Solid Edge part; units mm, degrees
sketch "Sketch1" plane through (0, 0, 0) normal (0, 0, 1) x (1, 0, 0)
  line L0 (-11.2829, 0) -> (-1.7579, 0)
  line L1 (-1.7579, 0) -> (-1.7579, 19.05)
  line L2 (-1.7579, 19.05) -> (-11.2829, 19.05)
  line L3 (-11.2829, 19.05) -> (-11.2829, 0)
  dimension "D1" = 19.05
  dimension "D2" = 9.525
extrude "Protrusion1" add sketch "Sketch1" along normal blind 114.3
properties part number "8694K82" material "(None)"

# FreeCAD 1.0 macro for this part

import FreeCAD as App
import Part
import Sketcher
from FreeCAD import Vector
Q = App.Units.Quantity

doc = App.newDocument("Part")
body = doc.addObject("PartDesign::Body", "Body")

# Sketch on XY plane
sketch1 = doc.addObject("Sketcher::SketchObject", "Sketch")
body.addObject(sketch1)
sketch1.AttachmentSupport = (doc.XY_Plane, [""])
sketch1.MapMode = "FlatFace"
sketch1.addGeometry(Part.LineSegment(Vector(-11, 19, 0), Vector(-11, 0, 0)), False)
sketch1.addGeometry(Part.LineSegment(Vector(-11, 0, 0), Vector(-2, 0, 0)), False)
sketch1.addGeometry(Part.LineSegment(Vector(-2, 0, 0), Vector(-2, 19, 0)), False)
sketch1.addGeometry(Part.LineSegment(Vector(-2, 19, 0), Vector(-11, 19, 0)), False)
sketch1.addConstraint(Sketcher.Constraint("Coincident", 0, 2, 1, 1))
sketch1.addConstraint(Sketcher.Constraint("Coincident", 1, 2, 2, 1))
sketch1.addConstraint(Sketcher.Constraint("Coincident", 2, 2, 3, 1))
sketch1.addConstraint(Sketcher.Constraint("Coincident", 3, 2, 0, 1))
sketch1.addConstraint(Sketcher.Constraint("Vertical", 0))
sketch1.addConstraint(Sketcher.Constraint("Horizontal", 1))
sketch1.addConstraint(Sketcher.Constraint("Vertical", 2))
sketch1.addConstraint(Sketcher.Constraint("Horizontal", 3))
sketch1.addConstraint(Sketcher.Constraint("PointOnObject", 0, 2, -1))
sketch1.addConstraint(Sketcher.Constraint("DistanceY", 0, 2, 0, 1, Q("0.75 in")))
sketch1.addConstraint(Sketcher.Constraint("DistanceX", 0, 2, -1, 1, Q("0.4442 in")))
sketch1.addConstraint(Sketcher.Constraint("DistanceX", 1, 2, -1, 1, Q("0.0692 in")))
pad1 = doc.addObject("PartDesign::Pad", "Pad")
body.addObject(pad1)
pad1.Profile = sketch1
pad1.Length = Q("4.5 in")

doc.recompute()
